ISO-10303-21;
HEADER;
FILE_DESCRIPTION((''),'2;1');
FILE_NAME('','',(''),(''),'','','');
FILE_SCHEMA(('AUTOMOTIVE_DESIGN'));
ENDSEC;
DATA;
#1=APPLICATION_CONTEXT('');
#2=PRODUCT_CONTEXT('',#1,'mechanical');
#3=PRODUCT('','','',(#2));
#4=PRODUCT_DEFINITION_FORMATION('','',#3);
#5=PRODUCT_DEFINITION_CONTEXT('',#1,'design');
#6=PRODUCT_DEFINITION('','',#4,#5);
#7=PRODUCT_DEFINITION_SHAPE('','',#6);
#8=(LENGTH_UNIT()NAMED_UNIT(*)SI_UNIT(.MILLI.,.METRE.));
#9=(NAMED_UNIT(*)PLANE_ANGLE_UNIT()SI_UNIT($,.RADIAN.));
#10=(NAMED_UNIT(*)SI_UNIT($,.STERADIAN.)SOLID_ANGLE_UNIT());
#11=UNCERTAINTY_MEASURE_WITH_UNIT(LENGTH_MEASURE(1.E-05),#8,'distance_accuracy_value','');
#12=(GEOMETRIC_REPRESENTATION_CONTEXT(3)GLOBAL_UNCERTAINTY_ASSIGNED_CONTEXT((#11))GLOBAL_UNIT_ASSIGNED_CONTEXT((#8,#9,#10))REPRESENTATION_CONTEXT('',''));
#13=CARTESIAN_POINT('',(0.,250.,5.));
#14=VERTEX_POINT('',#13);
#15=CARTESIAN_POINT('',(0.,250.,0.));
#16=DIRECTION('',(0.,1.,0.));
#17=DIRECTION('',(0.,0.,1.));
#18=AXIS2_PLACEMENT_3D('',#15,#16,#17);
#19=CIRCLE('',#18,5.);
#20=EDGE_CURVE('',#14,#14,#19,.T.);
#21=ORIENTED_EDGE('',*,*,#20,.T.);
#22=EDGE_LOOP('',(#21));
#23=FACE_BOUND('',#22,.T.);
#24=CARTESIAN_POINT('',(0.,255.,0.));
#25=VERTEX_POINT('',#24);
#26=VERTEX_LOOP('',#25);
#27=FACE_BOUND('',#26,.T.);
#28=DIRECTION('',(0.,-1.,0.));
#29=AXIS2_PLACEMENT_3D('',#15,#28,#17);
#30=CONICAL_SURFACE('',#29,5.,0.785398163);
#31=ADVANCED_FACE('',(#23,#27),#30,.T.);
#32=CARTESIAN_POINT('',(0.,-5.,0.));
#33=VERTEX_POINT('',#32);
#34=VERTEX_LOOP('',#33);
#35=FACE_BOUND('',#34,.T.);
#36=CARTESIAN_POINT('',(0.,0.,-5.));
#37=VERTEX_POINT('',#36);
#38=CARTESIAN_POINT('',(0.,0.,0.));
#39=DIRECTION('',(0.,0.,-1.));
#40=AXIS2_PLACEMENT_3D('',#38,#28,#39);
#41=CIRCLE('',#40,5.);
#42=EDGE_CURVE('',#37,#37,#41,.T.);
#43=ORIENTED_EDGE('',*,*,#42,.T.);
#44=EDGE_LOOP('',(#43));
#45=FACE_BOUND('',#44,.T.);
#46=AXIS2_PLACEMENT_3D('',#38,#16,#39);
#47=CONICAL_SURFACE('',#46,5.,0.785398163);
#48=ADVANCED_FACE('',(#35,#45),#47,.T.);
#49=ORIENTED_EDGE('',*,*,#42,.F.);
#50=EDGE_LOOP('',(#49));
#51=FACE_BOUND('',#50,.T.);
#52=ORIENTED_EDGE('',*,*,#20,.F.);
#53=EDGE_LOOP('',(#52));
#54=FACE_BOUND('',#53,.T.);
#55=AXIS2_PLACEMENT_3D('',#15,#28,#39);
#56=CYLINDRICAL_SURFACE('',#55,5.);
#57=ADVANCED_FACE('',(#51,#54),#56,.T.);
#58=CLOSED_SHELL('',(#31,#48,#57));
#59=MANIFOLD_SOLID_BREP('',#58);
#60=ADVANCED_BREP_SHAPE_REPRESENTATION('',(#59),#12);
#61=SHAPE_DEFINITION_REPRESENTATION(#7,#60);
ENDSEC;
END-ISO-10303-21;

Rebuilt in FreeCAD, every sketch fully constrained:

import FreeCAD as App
import Part
import Sketcher


def add_polygon(sketch, points):
    """Adds a closed chain of lines whose ends are joined by coincident constraints."""
    first, n = sketch.GeometryCount, len(points)
    for a, b in zip(points, points[1:] + points[:1]):
        sketch.addGeometry(Part.LineSegment(App.Vector(*a, 0), App.Vector(*b, 0)), False)
    for i in range(n):
        sketch.addConstraint(Sketcher.Constraint("Coincident", first + i, 2, first + (i + 1) % n, 1))

doc = App.newDocument("Part")
body = doc.addObject("PartDesign::Body", "Body")

# Sketch on XZ plane
sketch1 = doc.addObject("Sketcher::SketchObject", "Sketch")
body.addObject(sketch1)
sketch1.AttachmentSupport = (doc.XZ_Plane, [""])
sketch1.MapMode = "FlatFace"
sketch1.addGeometry(Part.Circle(App.Vector(0, 0, 0), App.Vector(0, 0, 1), 5), False)
sketch1.addConstraint([
    Sketcher.Constraint("Coincident", 0, 3, -1, 1),
    Sketcher.Constraint("Diameter", 0, 10.0),
])
pad1 = doc.addObject("PartDesign::Pad", "Pad")
body.addObject(pad1)
pad1.Profile = sketch1
pad1.Length = 250
pad1.Reversed = True

# Sketch on YZ plane
sketch2 = doc.addObject("Sketcher::SketchObject", "Sketch001")
body.addObject(sketch2)
sketch2.AttachmentSupport = (doc.YZ_Plane, [""])
sketch2.MapMode = "FlatFace"
add_polygon(sketch2, [(250, 0), (250, -5), (255, 0)])  # lines 0-2
sketch2.addConstraint([
    Sketcher.Constraint("Vertical", 0),
    Sketcher.Constraint("Horizontal", 2),
    Sketcher.Constraint("PointOnObject", 1, 2, -1),
    Sketcher.Constraint("Equal", 2, 0),
    Sketcher.Constraint("DistanceX", 2, 2, 2, 1, 5.0),
    Sketcher.Constraint("DistanceX", -1, 1, 0, 2, 250.0),
])
revolution = doc.addObject("PartDesign::Revolution", "Revolution")
body.addObject(revolution)
revolution.Profile = sketch2
revolution.ReferenceAxis = (sketch2, ["H_Axis"])
revolution.Angle = 360

# Sketch on YZ plane
sketch3 = doc.addObject("Sketcher::SketchObject", "Sketch002")
body.addObject(sketch3)
sketch3.AttachmentSupport = (doc.YZ_Plane, [""])
sketch3.MapMode = "FlatFace"
add_polygon(sketch3, [(0, 0), (0, 5), (-5, 0)])  # lines 0-2
sketch3.addConstraint([
    Sketcher.Constraint("Vertical", 0),
    Sketcher.Constraint("Horizontal", 2),
    Sketcher.Constraint("Coincident", 2, 2, -1, 1),
    Sketcher.Constraint("Equal", 2, 0),
    Sketcher.Constraint("DistanceX", 2, 1, 2, 2, 5.0),
])
revolution2 = doc.addObject("PartDesign::Revolution", "Revolution001")
body.addObject(revolution2)
revolution2.Profile = sketch3
revolution2.ReferenceAxis = (sketch3, ["H_Axis"])
revolution2.Angle = 360

doc.recompute()
